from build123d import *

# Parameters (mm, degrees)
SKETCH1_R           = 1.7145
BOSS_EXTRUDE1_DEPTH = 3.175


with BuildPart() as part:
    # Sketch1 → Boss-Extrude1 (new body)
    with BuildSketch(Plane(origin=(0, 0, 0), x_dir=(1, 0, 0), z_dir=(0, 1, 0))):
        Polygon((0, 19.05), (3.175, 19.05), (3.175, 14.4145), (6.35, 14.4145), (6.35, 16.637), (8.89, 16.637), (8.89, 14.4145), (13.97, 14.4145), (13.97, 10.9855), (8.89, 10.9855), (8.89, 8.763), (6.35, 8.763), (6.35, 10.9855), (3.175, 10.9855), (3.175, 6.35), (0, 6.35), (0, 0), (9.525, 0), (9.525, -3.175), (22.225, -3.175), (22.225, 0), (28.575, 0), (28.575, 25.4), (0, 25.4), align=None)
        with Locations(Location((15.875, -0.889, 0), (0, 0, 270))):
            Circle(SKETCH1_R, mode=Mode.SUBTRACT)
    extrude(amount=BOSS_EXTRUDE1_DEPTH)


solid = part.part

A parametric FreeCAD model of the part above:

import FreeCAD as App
import Part
import Sketcher

V = App.Vector
Q = App.Units.Quantity


def add_polygon(sketch, points):
    """Adds a closed chain of lines whose ends are joined by coincident constraints."""
    first, n = sketch.GeometryCount, len(points)
    for a, b in zip(points, points[1:] + points[:1]):
        sketch.addGeometry(Part.LineSegment(App.Vector(*a, 0), App.Vector(*b, 0)), False)
    for i in range(n):
        sketch.addConstraint(Sketcher.Constraint("Coincident", first + i, 2, first + (i + 1) % n, 1))

doc = App.newDocument("Part")
body = doc.addObject("PartDesign::Body", "Body")

sketch1 = body.newObject("Sketcher::SketchObject", "Sketch")
sketch1.AttachmentSupport = (doc.getObject("XZ_Plane"), [""])
sketch1.MapMode = "FlatFace"
add_polygon(sketch1, [(0, -19.1), (3.2, -19.1), (3.2, -14.4), (6.3, -14.4), (6.3, -16.6), (8.9, -16.6), (8.9, -14.4), (14, -14.4), (14, -11), (8.9, -11), (8.9, -8.8), (6.3, -8.8), (6.3, -11), (3.2, -11), (3.2, -6.3), (0, -6.3), (0, 0), (9.5, 0), (9.5, 3.2), (22.2, 3.2), (22.2, 0), (28.6, 0), (28.6, -25.4), (0, -25.4)])
sketch1.addGeometry(Part.Circle(V(15.9, 0.9, 0), V(0, 0, 1), 1.7), False)
sketch1.addConstraint([
    Sketcher.Constraint("Horizontal", 0),
    Sketcher.Constraint("Vertical", 1),
    Sketcher.Constraint("Horizontal", 2),
    Sketcher.Constraint("Vertical", 3),
    Sketcher.Constraint("Horizontal", 4),
    Sketcher.Constraint("Vertical", 5),
    Sketcher.Constraint("Horizontal", 6),
    Sketcher.Constraint("Vertical", 7),
    Sketcher.Constraint("Horizontal", 8),
    Sketcher.Constraint("Vertical", 9),
    Sketcher.Constraint("Horizontal", 10),
    Sketcher.Constraint("Vertical", 11),
    Sketcher.Constraint("Horizontal", 12),
    Sketcher.Constraint("Vertical", 13),
    Sketcher.Constraint("Horizontal", 14),
    Sketcher.Constraint("Vertical", 15),
    Sketcher.Constraint("Horizontal", 16),
    Sketcher.Constraint("Vertical", 17),
    Sketcher.Constraint("Horizontal", 18),
    Sketcher.Constraint("Vertical", 19),
    Sketcher.Constraint("Horizontal", 20),
    Sketcher.Constraint("Vertical", 21),
    Sketcher.Constraint("Horizontal", 22),
    Sketcher.Constraint("Vertical", 23),
    Sketcher.Constraint("Coincident", 15, 2, -1, 1),
    Sketcher.Constraint("PointOnObject", 19, 2, -1),
    Sketcher.Constraint("PointOnObject", 22, 2, -2),
    Sketcher.Constraint("Horizontal", 2, 2, 5, 2),
    Sketcher.Constraint("Horizontal", 8, 2, 11, 2),
    Sketcher.Constraint("Vertical", 5, 2, 8, 2),
    Sketcher.Constraint("Vertical", 3, 2, 10, 2),
    Sketcher.Constraint("Vertical", 1, 2, 12, 2),
    Sketcher.Constraint("Equal", 0, 2),
    Sketcher.Constraint("Equal", 5, 9),
    Sketcher.Constraint("Equal", 1, 13),
    Sketcher.Constraint("Equal", 20, 15),
    Sketcher.Constraint("Equal", 14, 17),
    Sketcher.Constraint("Equal", 15, 23),
    Sketcher.Constraint("DistanceY", 21, 2, 21, 1, Q("1 in")),
    Sketcher.Constraint("Diameter", 24, Q("0.135 in")),
    Sketcher.Constraint("DistanceX", 4, 1, 4, 2, Q("0.1 in")),
    Sketcher.Constraint("DistanceX", 6, 1, 6, 2, Q("0.2 in")),
    Sketcher.Constraint("DistanceX", 18, 1, 18, 2, Q("0.5 in")),
    Sketcher.Constraint("DistanceX", 20, 1, 20, 2, Q("0.25 in")),
    Sketcher.Constraint("DistanceX", 0, 2, 24, 3, Q("0.5 in")),
    Sketcher.Constraint("DistanceX", 24, 3, 20, 2, Q("0.5 in")),
    Sketcher.Constraint("DistanceX", 0, 1, 0, 2, Q("0.125 in")),
    Sketcher.Constraint("DistanceY", 7, 1, 7, 2, Q("0.135 in")),
    Sketcher.Constraint("DistanceY", 3, 2, 24, 3, Q("0.69 in")),
    Sketcher.Constraint("DistanceY", 24, 3, 17, 2, Q("0.09 in")),
])
pad1 = body.newObject("PartDesign::Pad", "Pad")
pad1.Profile = sketch1
pad1.Length = Q("0.125 in")
pad1.Reversed = True

doc.recompute()
